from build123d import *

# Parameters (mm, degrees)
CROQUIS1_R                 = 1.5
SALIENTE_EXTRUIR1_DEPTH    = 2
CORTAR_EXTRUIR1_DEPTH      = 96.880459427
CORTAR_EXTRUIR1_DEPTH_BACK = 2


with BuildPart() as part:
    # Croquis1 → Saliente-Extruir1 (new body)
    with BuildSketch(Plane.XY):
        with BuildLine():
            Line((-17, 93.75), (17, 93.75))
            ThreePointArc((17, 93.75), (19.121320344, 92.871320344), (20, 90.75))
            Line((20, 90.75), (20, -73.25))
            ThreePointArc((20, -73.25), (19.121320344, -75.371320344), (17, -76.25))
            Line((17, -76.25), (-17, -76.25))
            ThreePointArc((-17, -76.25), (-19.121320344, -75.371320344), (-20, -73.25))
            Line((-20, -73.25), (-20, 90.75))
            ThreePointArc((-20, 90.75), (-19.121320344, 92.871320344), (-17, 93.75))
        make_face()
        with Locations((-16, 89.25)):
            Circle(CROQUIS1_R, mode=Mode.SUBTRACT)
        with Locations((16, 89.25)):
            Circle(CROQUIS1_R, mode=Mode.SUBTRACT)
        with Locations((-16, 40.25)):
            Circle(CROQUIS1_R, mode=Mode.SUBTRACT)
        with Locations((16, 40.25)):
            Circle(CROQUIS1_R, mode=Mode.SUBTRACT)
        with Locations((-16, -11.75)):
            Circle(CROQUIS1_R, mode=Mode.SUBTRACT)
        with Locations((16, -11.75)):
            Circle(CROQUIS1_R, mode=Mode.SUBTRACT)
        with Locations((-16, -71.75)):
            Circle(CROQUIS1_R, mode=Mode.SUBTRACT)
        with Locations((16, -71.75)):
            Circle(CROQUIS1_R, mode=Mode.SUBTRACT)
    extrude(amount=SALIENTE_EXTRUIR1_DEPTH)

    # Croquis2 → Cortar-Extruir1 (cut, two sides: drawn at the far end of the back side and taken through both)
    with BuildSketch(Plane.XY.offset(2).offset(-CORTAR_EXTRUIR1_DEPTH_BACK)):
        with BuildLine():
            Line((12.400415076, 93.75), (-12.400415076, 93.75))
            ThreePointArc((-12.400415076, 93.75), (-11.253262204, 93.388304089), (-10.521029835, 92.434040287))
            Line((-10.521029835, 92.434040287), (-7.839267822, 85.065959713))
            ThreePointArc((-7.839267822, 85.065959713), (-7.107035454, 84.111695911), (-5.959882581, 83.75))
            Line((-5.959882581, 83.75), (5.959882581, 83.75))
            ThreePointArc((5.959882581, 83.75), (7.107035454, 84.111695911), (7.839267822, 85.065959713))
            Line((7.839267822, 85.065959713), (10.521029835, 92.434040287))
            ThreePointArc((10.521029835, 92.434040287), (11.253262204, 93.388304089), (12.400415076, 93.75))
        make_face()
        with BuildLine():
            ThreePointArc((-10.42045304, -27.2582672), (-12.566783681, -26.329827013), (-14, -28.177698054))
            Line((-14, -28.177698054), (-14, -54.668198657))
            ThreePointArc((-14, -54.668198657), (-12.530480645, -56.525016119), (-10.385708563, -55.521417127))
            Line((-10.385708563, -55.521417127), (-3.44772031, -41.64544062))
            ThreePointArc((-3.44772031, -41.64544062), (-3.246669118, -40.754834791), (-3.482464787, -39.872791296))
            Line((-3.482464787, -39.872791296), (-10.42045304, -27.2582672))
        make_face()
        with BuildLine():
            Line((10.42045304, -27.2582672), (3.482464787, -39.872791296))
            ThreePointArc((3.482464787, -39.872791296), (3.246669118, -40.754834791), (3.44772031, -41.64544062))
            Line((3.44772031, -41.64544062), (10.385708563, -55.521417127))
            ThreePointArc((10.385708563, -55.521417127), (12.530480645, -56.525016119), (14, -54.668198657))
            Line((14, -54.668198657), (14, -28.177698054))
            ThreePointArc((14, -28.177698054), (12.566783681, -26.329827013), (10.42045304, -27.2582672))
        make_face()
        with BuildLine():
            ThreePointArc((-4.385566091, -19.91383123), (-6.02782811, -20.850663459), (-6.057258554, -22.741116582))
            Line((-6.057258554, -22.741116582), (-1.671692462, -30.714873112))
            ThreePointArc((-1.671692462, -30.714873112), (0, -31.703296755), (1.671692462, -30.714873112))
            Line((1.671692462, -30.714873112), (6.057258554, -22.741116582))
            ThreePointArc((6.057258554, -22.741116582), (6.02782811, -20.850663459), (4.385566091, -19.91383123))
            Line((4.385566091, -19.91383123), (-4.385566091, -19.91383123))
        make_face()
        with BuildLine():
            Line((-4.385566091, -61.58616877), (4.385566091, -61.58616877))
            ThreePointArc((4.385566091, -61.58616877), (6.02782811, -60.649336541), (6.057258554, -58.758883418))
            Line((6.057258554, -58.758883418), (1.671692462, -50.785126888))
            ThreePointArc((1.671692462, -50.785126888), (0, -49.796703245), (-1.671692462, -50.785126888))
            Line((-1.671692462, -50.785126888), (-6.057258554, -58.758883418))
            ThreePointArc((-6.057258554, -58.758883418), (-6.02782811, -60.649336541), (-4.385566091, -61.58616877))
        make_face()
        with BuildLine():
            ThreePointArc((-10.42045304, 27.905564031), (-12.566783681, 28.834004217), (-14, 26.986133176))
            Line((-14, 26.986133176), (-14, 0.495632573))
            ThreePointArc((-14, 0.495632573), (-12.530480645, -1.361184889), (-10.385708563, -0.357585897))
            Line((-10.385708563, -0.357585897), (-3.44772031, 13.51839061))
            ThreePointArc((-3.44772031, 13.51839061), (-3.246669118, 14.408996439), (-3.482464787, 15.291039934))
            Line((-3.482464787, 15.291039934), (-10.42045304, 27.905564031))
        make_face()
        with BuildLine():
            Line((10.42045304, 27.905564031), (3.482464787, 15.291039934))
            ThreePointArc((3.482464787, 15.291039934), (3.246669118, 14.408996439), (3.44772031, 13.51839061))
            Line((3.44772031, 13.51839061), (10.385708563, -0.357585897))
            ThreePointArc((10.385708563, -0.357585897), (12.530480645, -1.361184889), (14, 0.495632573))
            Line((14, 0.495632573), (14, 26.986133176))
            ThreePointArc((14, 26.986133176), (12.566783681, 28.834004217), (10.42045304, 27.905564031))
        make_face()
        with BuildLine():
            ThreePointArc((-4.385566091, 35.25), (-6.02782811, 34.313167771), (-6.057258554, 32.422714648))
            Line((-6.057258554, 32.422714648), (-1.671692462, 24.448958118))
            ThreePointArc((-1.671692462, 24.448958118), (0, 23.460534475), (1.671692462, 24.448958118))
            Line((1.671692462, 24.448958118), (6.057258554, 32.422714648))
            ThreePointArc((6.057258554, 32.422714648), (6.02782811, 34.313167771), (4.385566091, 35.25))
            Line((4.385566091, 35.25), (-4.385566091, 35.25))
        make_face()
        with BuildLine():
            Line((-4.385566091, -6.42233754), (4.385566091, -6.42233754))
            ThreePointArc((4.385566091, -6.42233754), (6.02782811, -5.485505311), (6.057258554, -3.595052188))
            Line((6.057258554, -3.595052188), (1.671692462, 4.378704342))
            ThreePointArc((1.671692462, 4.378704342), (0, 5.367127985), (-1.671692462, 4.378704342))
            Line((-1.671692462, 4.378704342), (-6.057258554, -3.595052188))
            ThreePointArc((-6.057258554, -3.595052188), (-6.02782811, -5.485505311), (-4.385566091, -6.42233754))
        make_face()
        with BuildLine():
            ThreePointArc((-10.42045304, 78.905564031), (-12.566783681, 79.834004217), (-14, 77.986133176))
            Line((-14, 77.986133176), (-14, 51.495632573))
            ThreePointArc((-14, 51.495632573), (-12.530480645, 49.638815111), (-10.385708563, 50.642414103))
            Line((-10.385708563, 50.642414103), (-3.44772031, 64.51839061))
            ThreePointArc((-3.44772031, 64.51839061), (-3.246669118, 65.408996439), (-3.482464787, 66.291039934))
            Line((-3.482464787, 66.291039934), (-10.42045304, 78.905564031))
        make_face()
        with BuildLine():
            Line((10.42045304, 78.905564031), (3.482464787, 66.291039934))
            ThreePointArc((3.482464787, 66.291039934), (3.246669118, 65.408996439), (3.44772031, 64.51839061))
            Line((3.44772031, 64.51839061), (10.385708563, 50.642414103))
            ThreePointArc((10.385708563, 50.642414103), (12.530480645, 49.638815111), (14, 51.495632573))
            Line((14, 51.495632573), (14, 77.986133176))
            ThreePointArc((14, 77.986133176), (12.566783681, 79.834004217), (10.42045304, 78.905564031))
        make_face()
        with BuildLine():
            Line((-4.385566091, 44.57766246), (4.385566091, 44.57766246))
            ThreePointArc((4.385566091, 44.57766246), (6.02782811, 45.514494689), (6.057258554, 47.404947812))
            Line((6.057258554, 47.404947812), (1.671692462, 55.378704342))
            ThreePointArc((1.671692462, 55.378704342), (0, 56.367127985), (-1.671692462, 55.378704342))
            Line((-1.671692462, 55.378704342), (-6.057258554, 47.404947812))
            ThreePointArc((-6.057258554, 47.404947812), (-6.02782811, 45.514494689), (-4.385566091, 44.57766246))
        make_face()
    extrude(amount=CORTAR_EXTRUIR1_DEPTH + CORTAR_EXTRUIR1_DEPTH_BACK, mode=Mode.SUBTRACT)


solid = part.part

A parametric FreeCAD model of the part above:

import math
import FreeCAD as App
import Part
import Sketcher
from FreeCAD import Vector
Q = App.Units.Quantity

doc = App.newDocument("Part")
body = doc.addObject("PartDesign::Body", "Body")

sketch1 = body.newObject("Sketcher::SketchObject", "Sketch")
sketch1.AttachmentSupport = (doc.getObject("XY_Plane"), [""])
sketch1.MapMode = "FlatFace"
sketch1.addGeometry([
    Part.LineSegment(Vector(17, 93.8, 0), Vector(-17, 93.8, 0)),
    Part.ArcOfCircle(Part.Circle(Vector(-17, 90.8, 0), Vector(0, 0, 1), 3), math.radians(90), math.radians(180)),
    Part.LineSegment(Vector(-20, 90.8, 0), Vector(-20, -73.2, 0)),
    Part.ArcOfCircle(Part.Circle(Vector(-17, -73.3, 0), Vector(0, 0, 1), 3), math.radians(180), math.radians(270)),
    Part.LineSegment(Vector(-17, -76.2, 0), Vector(17, -76.2, 0)),
    Part.ArcOfCircle(Part.Circle(Vector(17, -73.3, 0), Vector(0, 0, 1), 3), math.radians(-90), math.radians(0)),
    Part.LineSegment(Vector(20, -73.2, 0), Vector(20, 90.8, 0)),
    Part.ArcOfCircle(Part.Circle(Vector(17, 90.8, 0), Vector(0, 0, 1), 3), math.radians(0), math.radians(90)),
    Part.Circle(Vector(16, -71.8, 0), Vector(0, 0, 1), 1.5),
    Part.Circle(Vector(16, -11.8, 0), Vector(0, 0, 1), 1.5),
    Part.Circle(Vector(-16, -71.8, 0), Vector(0, 0, 1), 1.5),
    Part.Circle(Vector(-16, -11.8, 0), Vector(0, 0, 1), 1.5),
    Part.Circle(Vector(16, 40.2, 0), Vector(0, 0, 1), 1.5),
    Part.Circle(Vector(16, 89.2, 0), Vector(0, 0, 1), 1.5),
    Part.Circle(Vector(-16, 40.2, 0), Vector(0, 0, 1), 1.5),
    Part.Circle(Vector(-16, 89.2, 0), Vector(0, 0, 1), 1.5),
], False)
sketch1.addConstraint([
    Sketcher.Constraint("Tangent", 0, 2, 1, 1),
    Sketcher.Constraint("Tangent", 1, 2, 2, 1),
    Sketcher.Constraint("Tangent", 2, 2, 3, 1),
    Sketcher.Constraint("Tangent", 3, 2, 4, 1),
    Sketcher.Constraint("Tangent", 4, 2, 5, 1),
    Sketcher.Constraint("Tangent", 5, 2, 6, 1),
    Sketcher.Constraint("Tangent", 6, 2, 7, 1),
    Sketcher.Constraint("Tangent", 7, 2, 0, 1),
    Sketcher.Constraint("Horizontal", 0),
    Sketcher.Constraint("Vertical", 2),
    Sketcher.Constraint("Horizontal", 4),
    Sketcher.Constraint("Vertical", 6),
    Sketcher.Constraint("Equal", 1, 3),
    Sketcher.Constraint("Equal", 3, 5),
    Sketcher.Constraint("Equal", 5, 7),
    Sketcher.Constraint("Equal", 8, 9),
    Sketcher.Constraint("Equal", 9, 10),
    Sketcher.Constraint("Equal", 10, 11),
    Sketcher.Constraint("Equal", 11, 12),
    Sketcher.Constraint("Equal", 12, 13),
    Sketcher.Constraint("Equal", 13, 14),
    Sketcher.Constraint("Equal", 14, 15),
    Sketcher.Constraint("Symmetric", 8, 3, 10, 3, -2),
    Sketcher.Constraint("Symmetric", 9, 3, 11, 3, -2),
    Sketcher.Constraint("Symmetric", 12, 3, 14, 3, -2),
    Sketcher.Constraint("Symmetric", 13, 3, 15, 3, -2),
    Sketcher.Constraint("Vertical", 8, 3, 9, 3),
    Sketcher.Constraint("Vertical", 9, 3, 12, 3),
    Sketcher.Constraint("Vertical", 12, 3, 13, 3),
    Sketcher.Constraint("Diameter", 8, 3.0),
    Sketcher.Constraint("Radius", 1, 3.0),
    Sketcher.Constraint("DistanceX", 0, 2, 0, 1, 34.0),
    Sketcher.Constraint("DistanceY", 2, 2, 2, 1, 164.0),
    Sketcher.Constraint("DistanceX", 1, 3, -1, 1, 17.0),
    Sketcher.Constraint("DistanceX", -1, 1, 8, 3, 16.0),
    Sketcher.Constraint("DistanceY", 8, 3, 9, 3, 60.0),
    Sketcher.Constraint("DistanceY", 9, 3, 12, 3, 52.0),
    Sketcher.Constraint("DistanceY", 12, 3, 13, 3, 49.0),
    Sketcher.Constraint("DistanceY", 5, 3, 8, 3, 1.5),
    Sketcher.Constraint("DistanceY", -1, 1, 1, 3, 90.75),
])
pad1 = body.newObject("PartDesign::Pad", "Pad")
pad1.Profile = sketch1
pad1.Length = 2

sketch2 = body.newObject("Sketcher::SketchObject", "Sketch001")
sketch2.AttachmentSupport = (doc.getObject("XY_Plane"), [""])
sketch2.MapMode = "FlatFace"
sketch2.AttachmentOffset = App.Placement(Vector(0, 0, 2), App.Rotation())
sketch2.addGeometry([
    Part.LineSegment(Vector(12.4, 93.8, 0), Vector(-12.4, 93.8, 0)),
    Part.ArcOfCircle(Part.Circle(Vector(-12.4, 91.8, 0), Vector(0, 0, 1), 2), math.radians(20), math.radians(90)),
    Part.LineSegment(Vector(-10.5, 92.4, 0), Vector(-7.8, 85.1, 0)),
    Part.ArcOfCircle(Part.Circle(Vector(-6, 85.7, 0), Vector(0, 0, 1), 2), math.radians(-160), math.radians(-90)),
    Part.LineSegment(Vector(-6, 83.8, 0), Vector(6, 83.8, 0)),
    Part.ArcOfCircle(Part.Circle(Vector(6, 85.7, 0), Vector(0, 0, 1), 2), math.radians(-90), math.radians(-20)),
    Part.LineSegment(Vector(7.8, 85.1, 0), Vector(10.5, 92.4, 0)),
    Part.ArcOfCircle(Part.Circle(Vector(12.4, 91.8, 0), Vector(0, 0, 1), 2), math.radians(90), math.radians(160)),
    Part.ArcOfCircle(Part.Circle(Vector(-12.1, -28.2, 0), Vector(0, 0, 1), 1.9), math.radians(29), math.radians(180)),
    Part.LineSegment(Vector(-14, -28.2, 0), Vector(-14, -54.7, 0)),
    Part.ArcOfCircle(Part.Circle(Vector(-12.1, -54.7, 0), Vector(0, 0, 1), 1.9), math.radians(180), math.radians(333)),
    Part.LineSegment(Vector(-10.4, -55.5, 0), Vector(-3.4, -41.6, 0)),
    Part.ArcOfCircle(Part.Circle(Vector(-5.2, -40.8, 0), Vector(0, 0, 1), 1.9), math.radians(-27), math.radians(29)),
    Part.LineSegment(Vector(-3.5, -39.9, 0), Vector(-10.4, -27.3, 0)),
    Part.LineSegment(Vector(10.4, -27.3, 0), Vector(3.5, -39.9, 0)),
    Part.ArcOfCircle(Part.Circle(Vector(5.2, -40.8, 0), Vector(0, 0, 1), 1.9), math.radians(151), math.radians(207)),
    Part.LineSegment(Vector(3.4, -41.6, 0), Vector(10.4, -55.5, 0)),
    Part.ArcOfCircle(Part.Circle(Vector(12.1, -54.7, 0), Vector(0, 0, 1), 1.9), math.radians(-153), math.radians(0)),
    Part.LineSegment(Vector(14, -54.7, 0), Vector(14, -28.2, 0)),
    Part.ArcOfCircle(Part.Circle(Vector(12.1, -28.2, 0), Vector(0, 0, 1), 1.9), math.radians(0), math.radians(151)),
    Part.ArcOfCircle(Part.Circle(Vector(-4.4, -21.8, 0), Vector(0, 0, 1), 1.9), math.radians(90), math.radians(209)),
    Part.LineSegment(Vector(-6.1, -22.7, 0), Vector(-1.7, -30.7, 0)),
    Part.ArcOfCircle(Part.Circle(Vector(0, -29.8, 0), Vector(0, 0, 1), 1.9), math.radians(-151), math.radians(-29)),
    Part.LineSegment(Vector(1.7, -30.7, 0), Vector(6.1, -22.7, 0)),
    Part.ArcOfCircle(Part.Circle(Vector(4.4, -21.8, 0), Vector(0, 0, 1), 1.9), math.radians(-29), math.radians(90)),
    Part.LineSegment(Vector(4.4, -19.9, 0), Vector(-4.4, -19.9, 0)),
    Part.LineSegment(Vector(-4.4, -61.6, 0), Vector(4.4, -61.6, 0)),
    Part.ArcOfCircle(Part.Circle(Vector(4.4, -59.7, 0), Vector(0, 0, 1), 1.9), math.radians(-90), math.radians(29)),
    Part.LineSegment(Vector(6.1, -58.8, 0), Vector(1.7, -50.8, 0)),
    Part.ArcOfCircle(Part.Circle(Vector(0, -51.7, 0), Vector(0, 0, 1), 1.9), math.radians(29), math.radians(151)),
    Part.LineSegment(Vector(-1.7, -50.8, 0), Vector(-6.1, -58.8, 0)),
    Part.ArcOfCircle(Part.Circle(Vector(-4.4, -59.7, 0), Vector(0, 0, 1), 1.9), math.radians(151), math.radians(270)),
    Part.ArcOfCircle(Part.Circle(Vector(-12.1, 27, 0), Vector(0, 0, 1), 1.9), math.radians(29), math.radians(180)),
    Part.LineSegment(Vector(-14, 27, 0), Vector(-14, 0.5, 0)),
    Part.ArcOfCircle(Part.Circle(Vector(-12.1, 0.5, 0), Vector(0, 0, 1), 1.9), math.radians(180), math.radians(333)),
    Part.LineSegment(Vector(-10.4, -0.4, 0), Vector(-3.4, 13.5, 0)),
    Part.ArcOfCircle(Part.Circle(Vector(-5.2, 14.4, 0), Vector(0, 0, 1), 1.9), math.radians(-27), math.radians(29)),
    Part.LineSegment(Vector(-3.5, 15.3, 0), Vector(-10.4, 27.9, 0)),
    Part.LineSegment(Vector(10.4, 27.9, 0), Vector(3.5, 15.3, 0)),
    Part.ArcOfCircle(Part.Circle(Vector(5.2, 14.4, 0), Vector(0, 0, 1), 1.9), math.radians(151), math.radians(207)),
    Part.LineSegment(Vector(3.4, 13.5, 0), Vector(10.4, -0.4, 0)),
    Part.ArcOfCircle(Part.Circle(Vector(12.1, 0.5, 0), Vector(0, 0, 1), 1.9), math.radians(-153), math.radians(0)),
    Part.LineSegment(Vector(14, 0.5, 0), Vector(14, 27, 0)),
    Part.ArcOfCircle(Part.Circle(Vector(12.1, 27, 0), Vector(0, 0, 1), 1.9), math.radians(0), math.radians(151)),
    Part.ArcOfCircle(Part.Circle(Vector(-4.4, 33.3, 0), Vector(0, 0, 1), 1.9), math.radians(90), math.radians(209)),
    Part.LineSegment(Vector(-6.1, 32.4, 0), Vector(-1.7, 24.4, 0)),
    Part.ArcOfCircle(Part.Circle(Vector(0, 25.4, 0), Vector(0, 0, 1), 1.9), math.radians(-151), math.radians(-29)),
    Part.LineSegment(Vector(1.7, 24.4, 0), Vector(6.1, 32.4, 0)),
    Part.ArcOfCircle(Part.Circle(Vector(4.4, 33.3, 0), Vector(0, 0, 1), 1.9), math.radians(-29), math.radians(90)),
    Part.LineSegment(Vector(4.4, 35.2, 0), Vector(-4.4, 35.2, 0)),
    Part.LineSegment(Vector(-4.4, -6.4, 0), Vector(4.4, -6.4, 0)),
    Part.ArcOfCircle(Part.Circle(Vector(4.4, -4.5, 0), Vector(0, 0, 1), 1.9), math.radians(-90), math.radians(29)),
    Part.LineSegment(Vector(6.1, -3.6, 0), Vector(1.7, 4.4, 0)),
    Part.ArcOfCircle(Part.Circle(Vector(0, 3.5, 0), Vector(0, 0, 1), 1.9), math.radians(29), math.radians(151)),
    Part.LineSegment(Vector(-1.7, 4.4, 0), Vector(-6.1, -3.6, 0)),
    Part.ArcOfCircle(Part.Circle(Vector(-4.4, -4.5, 0), Vector(0, 0, 1), 1.9), math.radians(151), math.radians(270)),
    Part.ArcOfCircle(Part.Circle(Vector(-12.1, 78, 0), Vector(0, 0, 1), 1.9), math.radians(29), math.radians(180)),
    Part.LineSegment(Vector(-14, 78, 0), Vector(-14, 51.5, 0)),
    Part.ArcOfCircle(Part.Circle(Vector(-12.1, 51.5, 0), Vector(0, 0, 1), 1.9), math.radians(180), math.radians(333)),
    Part.LineSegment(Vector(-10.4, 50.6, 0), Vector(-3.4, 64.5, 0)),
    Part.ArcOfCircle(Part.Circle(Vector(-5.2, 65.4, 0), Vector(0, 0, 1), 1.9), math.radians(-27), math.radians(29)),
    Part.LineSegment(Vector(-3.5, 66.3, 0), Vector(-10.4, 78.9, 0)),
    Part.LineSegment(Vector(10.4, 78.9, 0), Vector(3.5, 66.3, 0)),
    Part.ArcOfCircle(Part.Circle(Vector(5.2, 65.4, 0), Vector(0, 0, 1), 1.9), math.radians(151), math.radians(207)),
    Part.LineSegment(Vector(3.4, 64.5, 0), Vector(10.4, 50.6, 0)),
    Part.ArcOfCircle(Part.Circle(Vector(12.1, 51.5, 0), Vector(0, 0, 1), 1.9), math.radians(-153), math.radians(0)),
    Part.LineSegment(Vector(14, 51.5, 0), Vector(14, 78, 0)),
    Part.ArcOfCircle(Part.Circle(Vector(12.1, 78, 0), Vector(0, 0, 1), 1.9), math.radians(0), math.radians(151)),
    Part.LineSegment(Vector(-4.4, 44.6, 0), Vector(4.4, 44.6, 0)),
    Part.ArcOfCircle(Part.Circle(Vector(4.4, 46.5, 0), Vector(0, 0, 1), 1.9), math.radians(-90), math.radians(29)),
    Part.LineSegment(Vector(6.1, 47.4, 0), Vector(1.7, 55.4, 0)),
    Part.ArcOfCircle(Part.Circle(Vector(0, 54.5, 0), Vector(0, 0, 1), 1.9), math.radians(29), math.radians(151)),
    Part.LineSegment(Vector(-1.7, 55.4, 0), Vector(-6.1, 47.4, 0)),
    Part.ArcOfCircle(Part.Circle(Vector(-4.4, 46.5, 0), Vector(0, 0, 1), 1.9), math.radians(151), math.radians(270)),
], False)
sketch2.addConstraint([
    Sketcher.Constraint("Tangent", 0, 2, 1, 2),
    Sketcher.Constraint("Tangent", 1, 1, 2, 1),
    Sketcher.Constraint("Tangent", 2, 2, 3, 1),
    Sketcher.Constraint("Tangent", 3, 2, 4, 1),
    Sketcher.Constraint("Tangent", 4, 2, 5, 1),
    Sketcher.Constraint("Tangent", 5, 2, 6, 1),
    Sketcher.Constraint("Tangent", 6, 2, 7, 2),
    Sketcher.Constraint("Tangent", 7, 1, 0, 1),
    Sketcher.Constraint("Tangent", 8, 2, 9, 1),
    Sketcher.Constraint("Tangent", 9, 2, 10, 1),
    Sketcher.Constraint("Tangent", 10, 2, 11, 1),
    Sketcher.Constraint("Tangent", 11, 2, 12, 1),
    Sketcher.Constraint("Tangent", 12, 2, 13, 1),
    Sketcher.Constraint("Tangent", 13, 2, 8, 1),
    Sketcher.Constraint("Tangent", 14, 2, 15, 1),
    Sketcher.Constraint("Tangent", 15, 2, 16, 1),
    Sketcher.Constraint("Tangent", 16, 2, 17, 1),
    Sketcher.Constraint("Tangent", 17, 2, 18, 1),
    Sketcher.Constraint("Tangent", 18, 2, 19, 1),
    Sketcher.Constraint("Tangent", 19, 2, 14, 1),
    Sketcher.Constraint("Tangent", 20, 2, 21, 1),
    Sketcher.Constraint("Tangent", 21, 2, 22, 1),
    Sketcher.Constraint("Tangent", 22, 2, 23, 1),
    Sketcher.Constraint("Tangent", 23, 2, 24, 1),
    Sketcher.Constraint("Tangent", 24, 2, 25, 1),
    Sketcher.Constraint("Tangent", 25, 2, 20, 1),
    Sketcher.Constraint("Tangent", 26, 2, 27, 1),
    Sketcher.Constraint("Tangent", 27, 2, 28, 1),
    Sketcher.Constraint("Tangent", 28, 2, 29, 1),
    Sketcher.Constraint("Tangent", 29, 2, 30, 1),
    Sketcher.Constraint("Tangent", 30, 2, 31, 1),
    Sketcher.Constraint("Tangent", 31, 2, 26, 1),
    Sketcher.Constraint("Tangent", 32, 2, 33, 1),
    Sketcher.Constraint("Tangent", 33, 2, 34, 1),
    Sketcher.Constraint("Tangent", 34, 2, 35, 1),
    Sketcher.Constraint("Tangent", 35, 2, 36, 1),
    Sketcher.Constraint("Tangent", 36, 2, 37, 1),
    Sketcher.Constraint("Tangent", 37, 2, 32, 1),
    Sketcher.Constraint("Tangent", 38, 2, 39, 1),
    Sketcher.Constraint("Tangent", 39, 2, 40, 1),
    Sketcher.Constraint("Tangent", 40, 2, 41, 1),
    Sketcher.Constraint("Tangent", 41, 2, 42, 1),
    Sketcher.Constraint("Tangent", 42, 2, 43, 1),
    Sketcher.Constraint("Tangent", 43, 2, 38, 1),
    Sketcher.Constraint("Tangent", 44, 2, 45, 1),
    Sketcher.Constraint("Tangent", 45, 2, 46, 1),
    Sketcher.Constraint("Tangent", 46, 2, 47, 1),
    Sketcher.Constraint("Tangent", 47, 2, 48, 1),
    Sketcher.Constraint("Tangent", 48, 2, 49, 1),
    Sketcher.Constraint("Tangent", 49, 2, 44, 1),
    Sketcher.Constraint("Tangent", 50, 2, 51, 1),
    Sketcher.Constraint("Tangent", 51, 2, 52, 1),
    Sketcher.Constraint("Tangent", 52, 2, 53, 1),
    Sketcher.Constraint("Tangent", 53, 2, 54, 1),
    Sketcher.Constraint("Tangent", 54, 2, 55, 1),
    Sketcher.Constraint("Tangent", 55, 2, 50, 1),
    Sketcher.Constraint("Tangent", 56, 2, 57, 1),
    Sketcher.Constraint("Tangent", 57, 2, 58, 1),
    Sketcher.Constraint("Tangent", 58, 2, 59, 1),
    Sketcher.Constraint("Tangent", 59, 2, 60, 1),
    Sketcher.Constraint("Tangent", 60, 2, 61, 1),
    Sketcher.Constraint("Tangent", 61, 2, 56, 1),
    Sketcher.Constraint("Tangent", 62, 2, 63, 1),
    Sketcher.Constraint("Tangent", 63, 2, 64, 1),
    Sketcher.Constraint("Tangent", 64, 2, 65, 1),
    Sketcher.Constraint("Tangent", 65, 2, 66, 1),
    Sketcher.Constraint("Tangent", 66, 2, 67, 1),
    Sketcher.Constraint("Tangent", 67, 2, 62, 1),
    Sketcher.Constraint("Tangent", 68, 2, 69, 1),
    Sketcher.Constraint("Tangent", 69, 2, 70, 1),
    Sketcher.Constraint("Tangent", 70, 2, 71, 1),
    Sketcher.Constraint("Tangent", 71, 2, 72, 1),
    Sketcher.Constraint("Tangent", 72, 2, 73, 1),
    Sketcher.Constraint("Tangent", 73, 2, 68, 1),
    Sketcher.Constraint("Horizontal", 0),
    Sketcher.Constraint("Horizontal", 4),
    Sketcher.Constraint("Vertical", 9),
    Sketcher.Constraint("Vertical", 18),
    Sketcher.Constraint("Horizontal", 25),
    Sketcher.Constraint("Horizontal", 26),
    Sketcher.Constraint("Vertical", 33),
    Sketcher.Constraint("Vertical", 42),
    Sketcher.Constraint("Horizontal", 49),
    Sketcher.Constraint("Horizontal", 50),
    Sketcher.Constraint("Vertical", 57),
    Sketcher.Constraint("Vertical", 66),
    Sketcher.Constraint("Horizontal", 68),
    Sketcher.Constraint("Equal", 1, 3),
    Sketcher.Constraint("Equal", 3, 5),
    Sketcher.Constraint("Equal", 5, 7),
    Sketcher.Constraint("Equal", 8, 10),
    Sketcher.Constraint("Equal", 10, 12),
    Sketcher.Constraint("Equal", 12, 15),
    Sketcher.Constraint("Equal", 15, 17),
    Sketcher.Constraint("Equal", 17, 19),
    Sketcher.Constraint("Equal", 19, 20),
    Sketcher.Constraint("Equal", 20, 22),
    Sketcher.Constraint("Equal", 22, 24),
    Sketcher.Constraint("Equal", 24, 27),
    Sketcher.Constraint("Equal", 27, 29),
    Sketcher.Constraint("Equal", 29, 31),
    Sketcher.Constraint("Equal", 31, 32),
    Sketcher.Constraint("Equal", 32, 34),
    Sketcher.Constraint("Equal", 34, 36),
    Sketcher.Constraint("Equal", 36, 39),
    Sketcher.Constraint("Equal", 39, 41),
    Sketcher.Constraint("Equal", 41, 43),
    Sketcher.Constraint("Equal", 43, 44),
    Sketcher.Constraint("Equal", 44, 46),
    Sketcher.Constraint("Equal", 46, 48),
    Sketcher.Constraint("Equal", 48, 51),
    Sketcher.Constraint("Equal", 51, 53),
    Sketcher.Constraint("Equal", 53, 55),
    Sketcher.Constraint("Equal", 55, 56),
    Sketcher.Constraint("Equal", 56, 58),
    Sketcher.Constraint("Equal", 58, 60),
    Sketcher.Constraint("Equal", 60, 63),
    Sketcher.Constraint("Equal", 63, 65),
    Sketcher.Constraint("Equal", 65, 67),
    Sketcher.Constraint("Equal", 67, 69),
    Sketcher.Constraint("Equal", 69, 71),
    Sketcher.Constraint("Equal", 71, 73),
    Sketcher.Constraint("Symmetric", 12, 3, 15, 3, -2),
    Sketcher.Constraint("Symmetric", 10, 3, 17, 3, -2),
    Sketcher.Constraint("Symmetric", 36, 3, 39, 3, -2),
    Sketcher.Constraint("Symmetric", 34, 3, 41, 3, -2),
    Sketcher.Constraint("Symmetric", 60, 3, 63, 3, -2),
    Sketcher.Constraint("Symmetric", 58, 3, 65, 3, -2),
    Sketcher.Constraint("Symmetric", 2, 2, 5, 2, -2),
    Sketcher.Constraint("Symmetric", 21, 2, 22, 2, -2),
    Sketcher.Constraint("Symmetric", 28, 2, 29, 2, -2),
    Sketcher.Constraint("Symmetric", 45, 2, 46, 2, -2),
    Sketcher.Constraint("Symmetric", 52, 2, 53, 2, -2),
    Sketcher.Constraint("Symmetric", 70, 2, 71, 2, -2),
    Sketcher.Constraint("Parallel", 13, 21),
    Sketcher.Constraint("Parallel", 14, 23),
    Sketcher.Constraint("Parallel", 21, 28),
    Sketcher.Constraint("Parallel", 11, 35),
    Sketcher.Constraint("Parallel", 28, 37),
    Sketcher.Constraint("Parallel", 30, 38),
    Sketcher.Constraint("Parallel", 37, 45),
    Sketcher.Constraint("Parallel", 45, 52),
    Sketcher.Constraint("Parallel", 35, 59),
    Sketcher.Constraint("Parallel", 52, 61),
    Sketcher.Constraint("Parallel", 54, 62),
    Sketcher.Constraint("Parallel", 61, 70),
    Sketcher.Constraint("Vertical", 24, 3, 27, 3),
    Sketcher.Constraint("Vertical", 10, 3, 32, 3),
    Sketcher.Constraint("Vertical", 12, 3, 36, 3),
    Sketcher.Constraint("Vertical", 31, 3, 44, 3),
    Sketcher.Constraint("Vertical", 48, 3, 51, 3),
    Sketcher.Constraint("Vertical", 34, 3, 56, 3),
    Sketcher.Constraint("Vertical", 36, 3, 60, 3),
    Sketcher.Constraint("Vertical", 51, 3, 69, 3),
    Sketcher.Constraint("Radius", 1, 2.0),
    Sketcher.Constraint("Angle", 2, Q("-70 deg")),
    Sketcher.Constraint("DistanceX", 8, 2, -1, 1, 14.0),
    Sketcher.Constraint("DistanceY", -1, 1, 1, 3, 91.75),
    Sketcher.Constraint("DistanceY", -1, 1, 3, 3, 85.75),
    Sketcher.Constraint("DistanceY", -1, 1, 48, 2, 35.25),
    Sketcher.Constraint("DistanceY", 9, 2, 9, 1, 26.490501),
    Sketcher.Constraint("Radius", 8, 1.907854),
    Sketcher.Constraint("DistanceX", 0, 2, 0, 1, 24.80083),
    Sketcher.Constraint("DistanceY", 8, 3, -1, 1, 28.177698),
    Sketcher.Constraint("Distance", 21, 9.100219),
    Sketcher.Constraint("DistanceX", 25, 2, 25, 1, 8.771132),
    Sketcher.Constraint("DistanceY", -1, 1, 36, 3, 14.371609),
    Sketcher.Constraint("DistanceY", -1, 1, 60, 3, 65.371609),
    Sketcher.Constraint("DistanceX", 10, 2, -1, 1, 10.385709),
    Sketcher.Constraint("DistanceY", 24, 2, -1, 1, 19.913831),
    Sketcher.Constraint("DistanceY", 26, 2, -1, 1, 61.586169),
    Sketcher.Constraint("DistanceY", 51, 3, -1, 1, 4.514483),
    Sketcher.Constraint("DistanceY", -1, 1, 69, 3, 46.485517),
])
pocket1 = body.newObject("PartDesign::Pocket", "Pocket")
pocket1.Profile = sketch2
pocket1.Type = "ThroughAll"
pocket1.Midplane = True

doc.recompute()
